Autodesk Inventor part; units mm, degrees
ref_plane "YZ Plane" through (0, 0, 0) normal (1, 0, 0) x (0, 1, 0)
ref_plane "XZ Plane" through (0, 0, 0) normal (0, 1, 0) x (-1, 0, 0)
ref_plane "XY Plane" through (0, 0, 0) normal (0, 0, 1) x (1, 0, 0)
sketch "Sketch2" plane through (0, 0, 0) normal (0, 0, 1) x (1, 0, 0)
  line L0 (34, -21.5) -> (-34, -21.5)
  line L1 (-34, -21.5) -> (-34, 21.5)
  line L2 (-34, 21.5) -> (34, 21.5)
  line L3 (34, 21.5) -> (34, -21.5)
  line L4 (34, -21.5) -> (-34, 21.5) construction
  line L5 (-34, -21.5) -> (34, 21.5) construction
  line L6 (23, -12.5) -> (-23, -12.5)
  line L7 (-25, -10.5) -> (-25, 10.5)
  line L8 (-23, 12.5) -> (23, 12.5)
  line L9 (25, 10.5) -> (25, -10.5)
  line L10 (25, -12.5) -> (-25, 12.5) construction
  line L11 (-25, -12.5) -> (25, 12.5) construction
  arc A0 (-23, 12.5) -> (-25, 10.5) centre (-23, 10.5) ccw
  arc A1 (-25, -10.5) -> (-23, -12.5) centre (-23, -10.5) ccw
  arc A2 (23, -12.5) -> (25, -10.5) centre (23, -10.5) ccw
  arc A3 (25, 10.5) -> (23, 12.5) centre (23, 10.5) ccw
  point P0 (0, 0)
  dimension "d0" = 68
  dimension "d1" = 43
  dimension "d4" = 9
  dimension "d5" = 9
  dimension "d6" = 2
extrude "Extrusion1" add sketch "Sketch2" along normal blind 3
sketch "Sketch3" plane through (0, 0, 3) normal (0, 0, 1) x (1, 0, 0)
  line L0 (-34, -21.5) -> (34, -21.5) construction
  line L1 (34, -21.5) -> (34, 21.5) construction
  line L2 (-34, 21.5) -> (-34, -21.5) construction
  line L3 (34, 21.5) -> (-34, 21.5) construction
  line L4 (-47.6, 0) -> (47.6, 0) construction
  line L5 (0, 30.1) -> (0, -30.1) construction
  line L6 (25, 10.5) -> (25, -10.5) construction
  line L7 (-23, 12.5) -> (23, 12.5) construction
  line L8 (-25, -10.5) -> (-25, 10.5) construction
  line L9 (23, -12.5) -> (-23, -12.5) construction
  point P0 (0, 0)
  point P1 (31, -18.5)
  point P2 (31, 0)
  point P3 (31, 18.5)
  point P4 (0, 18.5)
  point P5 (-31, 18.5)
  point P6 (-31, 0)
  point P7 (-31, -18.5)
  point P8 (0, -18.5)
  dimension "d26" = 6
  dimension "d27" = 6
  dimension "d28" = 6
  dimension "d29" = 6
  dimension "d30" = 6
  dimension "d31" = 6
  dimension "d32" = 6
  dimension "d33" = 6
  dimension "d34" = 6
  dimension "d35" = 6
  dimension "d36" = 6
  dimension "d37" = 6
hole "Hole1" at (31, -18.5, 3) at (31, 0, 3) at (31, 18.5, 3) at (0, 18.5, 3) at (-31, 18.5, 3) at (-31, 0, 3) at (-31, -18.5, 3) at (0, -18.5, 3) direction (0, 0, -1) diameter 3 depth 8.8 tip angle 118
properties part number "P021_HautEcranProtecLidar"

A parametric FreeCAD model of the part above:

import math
import FreeCAD as App
import Part
import Sketcher

V = App.Vector

doc = App.newDocument("Part")
body = doc.addObject("PartDesign::Body", "Body")

# Sketch on XY plane
sketch1 = body.newObject("Sketcher::SketchObject", "Sketch")
sketch1.AttachmentSupport = (doc.getObject("XY_Plane"), [""])
sketch1.MapMode = "FlatFace"
sketch1.addGeometry([
    Part.LineSegment(V(-34, -21.5, 0), V(34, -21.5, 0)),  # 0
    Part.LineSegment(V(34, -21.5, 0), V(34, 21.5, 0)),  # 1
    Part.LineSegment(V(34, 21.5, 0), V(-34, 21.5, 0)),  # 2
    Part.LineSegment(V(-34, 21.5, 0), V(-34, -21.5, 0)),  # 3
    Part.ArcOfCircle(Part.Circle(V(23, -10.5, 0), V(0, 0, 1), 2), math.radians(-90), math.radians(0)),  # 4
    Part.LineSegment(V(23, -12.5, 0), V(-23, -12.5, 0)),  # 5
    Part.ArcOfCircle(Part.Circle(V(-23, -10.5, 0), V(0, 0, 1), 2), math.radians(180), math.radians(270)),  # 6
    Part.LineSegment(V(-25, -10.5, 0), V(-25, 10.5, 0)),  # 7
    Part.ArcOfCircle(Part.Circle(V(-23, 10.5, 0), V(0, 0, 1), 2), math.radians(90), math.radians(180)),  # 8
    Part.LineSegment(V(-23, 12.5, 0), V(23, 12.5, 0)),  # 9
    Part.ArcOfCircle(Part.Circle(V(23, 10.5, 0), V(0, 0, 1), 2), math.radians(0), math.radians(90)),  # 10
    Part.LineSegment(V(25, 10.5, 0), V(25, -10.5, 0)),  # 11
], False)
sketch1.addConstraint([
    Sketcher.Constraint("Coincident", 0, 2, 1, 1),
    Sketcher.Constraint("Coincident", 1, 2, 2, 1),
    Sketcher.Constraint("Coincident", 2, 2, 3, 1),
    Sketcher.Constraint("Coincident", 3, 2, 0, 1),
    Sketcher.Constraint("Tangent", 4, 1, 5, 1),
    Sketcher.Constraint("Tangent", 5, 2, 6, 2),
    Sketcher.Constraint("Tangent", 6, 1, 7, 1),
    Sketcher.Constraint("Tangent", 7, 2, 8, 2),
    Sketcher.Constraint("Tangent", 8, 1, 9, 1),
    Sketcher.Constraint("Tangent", 9, 2, 10, 2),
    Sketcher.Constraint("Tangent", 10, 1, 11, 1),
    Sketcher.Constraint("Tangent", 11, 2, 4, 2),
    Sketcher.Constraint("Horizontal", 0),
    Sketcher.Constraint("Vertical", 1),
    Sketcher.Constraint("Horizontal", 2),
    Sketcher.Constraint("Vertical", 3),
    Sketcher.Constraint("Horizontal", 5),
    Sketcher.Constraint("Vertical", 7),
    Sketcher.Constraint("Horizontal", 9),
    Sketcher.Constraint("Vertical", 11),
    Sketcher.Constraint("Equal", 4, 6),
    Sketcher.Constraint("Equal", 6, 8),
    Sketcher.Constraint("Equal", 8, 10),
    Sketcher.Constraint("Symmetric", 4, 3, 8, 3, -1, 1),
    Sketcher.Constraint("Symmetric", 0, 2, 2, 2, -1, 1),
    Sketcher.Constraint("Radius", 4, 2.0),
    Sketcher.Constraint("DistanceX", 0, 1, 0, 2, 68.0),
    Sketcher.Constraint("DistanceY", 1, 1, 1, 2, 43.0),
    Sketcher.Constraint("DistanceY", 0, 2, 4, 1, 9.0),
    Sketcher.Constraint("DistanceX", 3, 2, 6, 1, 9.0),
])
pad1 = body.newObject("PartDesign::Pad", "Pad")
pad1.Profile = sketch1
pad1.Length = 3

# Sketch on XY plane
sketch2 = body.newObject("Sketcher::SketchObject", "Sketch001")
sketch2.AttachmentSupport = (doc.getObject("XY_Plane"), [""])
sketch2.MapMode = "FlatFace"
sketch2.AttachmentOffset = App.Placement(V(0, 0, 3), App.Rotation())
sketch2.addGeometry([
    Part.Circle(V(31, -18.5, 0), V(0, 0, 1), 1.5),  # 0
    Part.Circle(V(31, 0, 0), V(0, 0, 1), 1.5),  # 1
    Part.Circle(V(31, 18.5, 0), V(0, 0, 1), 1.5),  # 2
    Part.Circle(V(0, 18.5, 0), V(0, 0, 1), 1.5),  # 3
    Part.Circle(V(-31, 18.5, 0), V(0, 0, 1), 1.5),  # 4
    Part.Circle(V(-31, 0, 0), V(0, 0, 1), 1.5),  # 5
    Part.Circle(V(-31, -18.5, 0), V(0, 0, 1), 1.5),  # 6
    Part.Circle(V(0, -18.5, 0), V(0, 0, 1), 1.5),  # 7
], False)
sketch2.addConstraint([
    Sketcher.Constraint("Equal", 0, 1),
    Sketcher.Constraint("Equal", 1, 2),
    Sketcher.Constraint("Equal", 2, 3),
    Sketcher.Constraint("Equal", 3, 4),
    Sketcher.Constraint("Equal", 4, 5),
    Sketcher.Constraint("Equal", 5, 6),
    Sketcher.Constraint("Equal", 6, 7),
    Sketcher.Constraint("Symmetric", 0, 3, 4, 3, -1, 1),
    Sketcher.Constraint("Symmetric", 1, 3, 5, 3, -1, 1),
    Sketcher.Constraint("Symmetric", 2, 3, 6, 3, -1, 1),
    Sketcher.Constraint("Symmetric", 3, 3, 7, 3, -1, 1),
    Sketcher.Constraint("Symmetric", 2, 3, 4, 3, -2),
    Sketcher.Constraint("PointOnObject", 1, 3, -1),
    Sketcher.Constraint("PointOnObject", 3, 3, -2),
    Sketcher.Constraint("Horizontal", 2, 3, 3, 3),
    Sketcher.Constraint("Vertical", 0, 3, 1, 3),
    Sketcher.Constraint("Diameter", 0, 3.0),
    Sketcher.Constraint("DistanceX", -1, 1, 0, 3, 31.0),
    Sketcher.Constraint("DistanceY", 0, 3, 2, 3, 37.0),
])
doc.recompute()
hole = body.newObject("PartDesign::Hole", "Hole")
hole.Profile = sketch2
hole.ThreadType = "None"
hole.Diameter = 3
hole.DepthType = "Dimension"
hole.Depth = 8.8
hole.DrillPoint = "Angled"
hole.DrillPointAngle = 118

doc.recompute()
